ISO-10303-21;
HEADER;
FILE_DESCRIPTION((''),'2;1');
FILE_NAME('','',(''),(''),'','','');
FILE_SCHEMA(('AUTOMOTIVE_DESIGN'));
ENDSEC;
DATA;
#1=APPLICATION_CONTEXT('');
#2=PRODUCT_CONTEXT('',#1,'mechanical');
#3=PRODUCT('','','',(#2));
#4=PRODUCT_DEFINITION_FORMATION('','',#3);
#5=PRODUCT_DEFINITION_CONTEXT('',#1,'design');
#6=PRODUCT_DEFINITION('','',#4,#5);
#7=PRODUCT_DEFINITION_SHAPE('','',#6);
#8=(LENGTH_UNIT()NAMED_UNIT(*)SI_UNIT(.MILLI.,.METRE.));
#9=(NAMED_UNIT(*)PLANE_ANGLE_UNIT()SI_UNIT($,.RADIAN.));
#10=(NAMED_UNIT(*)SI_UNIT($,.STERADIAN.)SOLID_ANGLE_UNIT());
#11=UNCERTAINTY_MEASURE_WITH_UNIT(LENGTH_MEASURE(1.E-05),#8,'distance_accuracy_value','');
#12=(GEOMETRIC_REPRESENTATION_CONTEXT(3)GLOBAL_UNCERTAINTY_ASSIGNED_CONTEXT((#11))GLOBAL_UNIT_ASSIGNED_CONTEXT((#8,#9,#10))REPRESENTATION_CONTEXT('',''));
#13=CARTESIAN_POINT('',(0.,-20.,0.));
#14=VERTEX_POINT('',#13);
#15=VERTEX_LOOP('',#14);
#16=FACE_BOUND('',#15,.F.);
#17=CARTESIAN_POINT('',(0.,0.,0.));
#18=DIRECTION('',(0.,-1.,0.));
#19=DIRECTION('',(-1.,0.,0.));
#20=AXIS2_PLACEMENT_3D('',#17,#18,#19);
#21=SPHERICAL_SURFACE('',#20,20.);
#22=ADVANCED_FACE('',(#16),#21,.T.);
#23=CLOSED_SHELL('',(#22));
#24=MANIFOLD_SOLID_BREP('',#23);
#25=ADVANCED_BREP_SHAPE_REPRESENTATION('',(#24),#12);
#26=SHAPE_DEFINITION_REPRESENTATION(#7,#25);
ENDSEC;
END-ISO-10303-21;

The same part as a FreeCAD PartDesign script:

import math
import FreeCAD as App
import Part
import Sketcher
Q = App.Units.Quantity

doc = App.newDocument("Part")
params = doc.addObject("Spreadsheet::Sheet", "Params")
for row, (alias, value) in enumerate([
    ("sketch1_radius", "20 mm"),
    ("revolution_angle", "360 deg"),
], start=1):
    params.set(f"A{row}", alias)
    params.set(f"B{row}", "=" + value)
    params.setAlias(f"B{row}", alias)

body = doc.addObject("PartDesign::Body", "Body")

# Sketch on XY plane
sketch1 = doc.addObject("Sketcher::SketchObject", "Sketch")
body.addObject(sketch1)
sketch1.AttachmentSupport = (doc.XY_Plane, [""])
sketch1.MapMode = "FlatFace"
sketch1.addGeometry([
    Part.LineSegment(App.Vector(0, -20, 0), App.Vector(0, 20, 0)),
    Part.ArcOfCircle(Part.Circle(App.Vector(0, 0, 0), App.Vector(0, 0, 1), 20), math.radians(90), math.radians(270)),
], False)
sketch1.addConstraint([
    Sketcher.Constraint("Coincident", 0, 1, 1, 2),
    Sketcher.Constraint("Coincident", 1, 1, 0, 2),
    Sketcher.Constraint("Vertical", 0),
    Sketcher.Constraint("Coincident", 1, 3, -1, 1),
    Sketcher.Constraint("PointOnObject", 0, 1, -2),
    Sketcher.Constraint("Radius", 1, Q("20 mm")),
])
sketch1.setExpression("Constraints[5]", "Params.sketch1_radius")
revolution = doc.addObject("PartDesign::Revolution", "Revolution")
body.addObject(revolution)
revolution.Profile = sketch1
revolution.ReferenceAxis = (sketch1, ["V_Axis"])
revolution.setExpression("Angle", "Params.revolution_angle")

doc.recompute()
